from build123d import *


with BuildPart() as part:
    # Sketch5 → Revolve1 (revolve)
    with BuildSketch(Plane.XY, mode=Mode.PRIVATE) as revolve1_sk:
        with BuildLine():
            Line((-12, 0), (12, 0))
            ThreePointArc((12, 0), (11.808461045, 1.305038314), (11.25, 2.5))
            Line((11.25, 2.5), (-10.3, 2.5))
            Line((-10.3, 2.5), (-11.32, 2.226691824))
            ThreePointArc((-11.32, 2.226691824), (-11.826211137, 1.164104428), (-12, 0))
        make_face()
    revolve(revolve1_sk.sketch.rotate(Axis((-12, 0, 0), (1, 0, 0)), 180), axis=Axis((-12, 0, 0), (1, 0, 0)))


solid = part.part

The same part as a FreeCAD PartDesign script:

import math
import FreeCAD as App
import Part
import Sketcher
Q = App.Units.Quantity

doc = App.newDocument("Part")
body = doc.addObject("PartDesign::Body", "Body")

# Sketch on XY plane
sketch1 = body.newObject("Sketcher::SketchObject", "Sketch")
sketch1.AttachmentSupport = (doc.getObject("XY_Plane"), [""])
sketch1.MapMode = "FlatFace"
sketch1.addGeometry([
    Part.LineSegment(App.Vector(-12, 0, 0), App.Vector(12, 0, 0)),  # 0
    Part.ArcOfCircle(Part.Circle(App.Vector(7.458333, 0, 0), App.Vector(0, 0, 1), 4.541667), math.radians(0), math.radians(33.398488)),  # 1
    Part.LineSegment(App.Vector(11.25, 2.5, 0), App.Vector(-10.3, 2.5, 0)),  # 2
    Part.LineSegment(App.Vector(-10.3, 2.5, 0), App.Vector(-11.32, 2.226692, 0)),  # 3
    Part.ArcOfCircle(Part.Circle(App.Vector(-8.014297, 0, 0), App.Vector(0, 0, 1), 3.985703), math.radians(146.036149), math.radians(180)),  # 4
], False)
sketch1.addConstraint([
    Sketcher.Constraint("Coincident", 0, 2, 1, 1),
    Sketcher.Constraint("Coincident", 1, 2, 2, 1),
    Sketcher.Constraint("Coincident", 2, 2, 3, 1),
    Sketcher.Constraint("Coincident", 3, 2, 4, 1),
    Sketcher.Constraint("Coincident", 4, 2, 0, 1),
    Sketcher.Constraint("Horizontal", 0),
    Sketcher.Constraint("Horizontal", 2),
    Sketcher.Constraint("Symmetric", 0, 2, 4, 2, -1, 1),
    Sketcher.Constraint("PointOnObject", 1, 3, -1),
    Sketcher.Constraint("PointOnObject", 4, 3, -1),
    Sketcher.Constraint("DistanceX", 0, 1, 0, 2, Q("24 mm")),
    Sketcher.Constraint("Angle", 3, Q("-165 deg")),
    Sketcher.Constraint("DistanceX", 2, 2, 2, 1, Q("21.55 mm")),
    Sketcher.Constraint("DistanceY", -1, 1, 1, 2, Q("2.5 mm")),
    Sketcher.Constraint("DistanceX", 2, 2, -1, 1, Q("10.3 mm")),
    Sketcher.Constraint("DistanceX", 3, 2, -1, 1, Q("11.32 mm")),
])
revolution = body.newObject("PartDesign::Revolution", "Revolution")
revolution.Profile = sketch1
revolution.ReferenceAxis = (sketch1, ["H_Axis"])
revolution.Angle = 360

doc.recompute()
